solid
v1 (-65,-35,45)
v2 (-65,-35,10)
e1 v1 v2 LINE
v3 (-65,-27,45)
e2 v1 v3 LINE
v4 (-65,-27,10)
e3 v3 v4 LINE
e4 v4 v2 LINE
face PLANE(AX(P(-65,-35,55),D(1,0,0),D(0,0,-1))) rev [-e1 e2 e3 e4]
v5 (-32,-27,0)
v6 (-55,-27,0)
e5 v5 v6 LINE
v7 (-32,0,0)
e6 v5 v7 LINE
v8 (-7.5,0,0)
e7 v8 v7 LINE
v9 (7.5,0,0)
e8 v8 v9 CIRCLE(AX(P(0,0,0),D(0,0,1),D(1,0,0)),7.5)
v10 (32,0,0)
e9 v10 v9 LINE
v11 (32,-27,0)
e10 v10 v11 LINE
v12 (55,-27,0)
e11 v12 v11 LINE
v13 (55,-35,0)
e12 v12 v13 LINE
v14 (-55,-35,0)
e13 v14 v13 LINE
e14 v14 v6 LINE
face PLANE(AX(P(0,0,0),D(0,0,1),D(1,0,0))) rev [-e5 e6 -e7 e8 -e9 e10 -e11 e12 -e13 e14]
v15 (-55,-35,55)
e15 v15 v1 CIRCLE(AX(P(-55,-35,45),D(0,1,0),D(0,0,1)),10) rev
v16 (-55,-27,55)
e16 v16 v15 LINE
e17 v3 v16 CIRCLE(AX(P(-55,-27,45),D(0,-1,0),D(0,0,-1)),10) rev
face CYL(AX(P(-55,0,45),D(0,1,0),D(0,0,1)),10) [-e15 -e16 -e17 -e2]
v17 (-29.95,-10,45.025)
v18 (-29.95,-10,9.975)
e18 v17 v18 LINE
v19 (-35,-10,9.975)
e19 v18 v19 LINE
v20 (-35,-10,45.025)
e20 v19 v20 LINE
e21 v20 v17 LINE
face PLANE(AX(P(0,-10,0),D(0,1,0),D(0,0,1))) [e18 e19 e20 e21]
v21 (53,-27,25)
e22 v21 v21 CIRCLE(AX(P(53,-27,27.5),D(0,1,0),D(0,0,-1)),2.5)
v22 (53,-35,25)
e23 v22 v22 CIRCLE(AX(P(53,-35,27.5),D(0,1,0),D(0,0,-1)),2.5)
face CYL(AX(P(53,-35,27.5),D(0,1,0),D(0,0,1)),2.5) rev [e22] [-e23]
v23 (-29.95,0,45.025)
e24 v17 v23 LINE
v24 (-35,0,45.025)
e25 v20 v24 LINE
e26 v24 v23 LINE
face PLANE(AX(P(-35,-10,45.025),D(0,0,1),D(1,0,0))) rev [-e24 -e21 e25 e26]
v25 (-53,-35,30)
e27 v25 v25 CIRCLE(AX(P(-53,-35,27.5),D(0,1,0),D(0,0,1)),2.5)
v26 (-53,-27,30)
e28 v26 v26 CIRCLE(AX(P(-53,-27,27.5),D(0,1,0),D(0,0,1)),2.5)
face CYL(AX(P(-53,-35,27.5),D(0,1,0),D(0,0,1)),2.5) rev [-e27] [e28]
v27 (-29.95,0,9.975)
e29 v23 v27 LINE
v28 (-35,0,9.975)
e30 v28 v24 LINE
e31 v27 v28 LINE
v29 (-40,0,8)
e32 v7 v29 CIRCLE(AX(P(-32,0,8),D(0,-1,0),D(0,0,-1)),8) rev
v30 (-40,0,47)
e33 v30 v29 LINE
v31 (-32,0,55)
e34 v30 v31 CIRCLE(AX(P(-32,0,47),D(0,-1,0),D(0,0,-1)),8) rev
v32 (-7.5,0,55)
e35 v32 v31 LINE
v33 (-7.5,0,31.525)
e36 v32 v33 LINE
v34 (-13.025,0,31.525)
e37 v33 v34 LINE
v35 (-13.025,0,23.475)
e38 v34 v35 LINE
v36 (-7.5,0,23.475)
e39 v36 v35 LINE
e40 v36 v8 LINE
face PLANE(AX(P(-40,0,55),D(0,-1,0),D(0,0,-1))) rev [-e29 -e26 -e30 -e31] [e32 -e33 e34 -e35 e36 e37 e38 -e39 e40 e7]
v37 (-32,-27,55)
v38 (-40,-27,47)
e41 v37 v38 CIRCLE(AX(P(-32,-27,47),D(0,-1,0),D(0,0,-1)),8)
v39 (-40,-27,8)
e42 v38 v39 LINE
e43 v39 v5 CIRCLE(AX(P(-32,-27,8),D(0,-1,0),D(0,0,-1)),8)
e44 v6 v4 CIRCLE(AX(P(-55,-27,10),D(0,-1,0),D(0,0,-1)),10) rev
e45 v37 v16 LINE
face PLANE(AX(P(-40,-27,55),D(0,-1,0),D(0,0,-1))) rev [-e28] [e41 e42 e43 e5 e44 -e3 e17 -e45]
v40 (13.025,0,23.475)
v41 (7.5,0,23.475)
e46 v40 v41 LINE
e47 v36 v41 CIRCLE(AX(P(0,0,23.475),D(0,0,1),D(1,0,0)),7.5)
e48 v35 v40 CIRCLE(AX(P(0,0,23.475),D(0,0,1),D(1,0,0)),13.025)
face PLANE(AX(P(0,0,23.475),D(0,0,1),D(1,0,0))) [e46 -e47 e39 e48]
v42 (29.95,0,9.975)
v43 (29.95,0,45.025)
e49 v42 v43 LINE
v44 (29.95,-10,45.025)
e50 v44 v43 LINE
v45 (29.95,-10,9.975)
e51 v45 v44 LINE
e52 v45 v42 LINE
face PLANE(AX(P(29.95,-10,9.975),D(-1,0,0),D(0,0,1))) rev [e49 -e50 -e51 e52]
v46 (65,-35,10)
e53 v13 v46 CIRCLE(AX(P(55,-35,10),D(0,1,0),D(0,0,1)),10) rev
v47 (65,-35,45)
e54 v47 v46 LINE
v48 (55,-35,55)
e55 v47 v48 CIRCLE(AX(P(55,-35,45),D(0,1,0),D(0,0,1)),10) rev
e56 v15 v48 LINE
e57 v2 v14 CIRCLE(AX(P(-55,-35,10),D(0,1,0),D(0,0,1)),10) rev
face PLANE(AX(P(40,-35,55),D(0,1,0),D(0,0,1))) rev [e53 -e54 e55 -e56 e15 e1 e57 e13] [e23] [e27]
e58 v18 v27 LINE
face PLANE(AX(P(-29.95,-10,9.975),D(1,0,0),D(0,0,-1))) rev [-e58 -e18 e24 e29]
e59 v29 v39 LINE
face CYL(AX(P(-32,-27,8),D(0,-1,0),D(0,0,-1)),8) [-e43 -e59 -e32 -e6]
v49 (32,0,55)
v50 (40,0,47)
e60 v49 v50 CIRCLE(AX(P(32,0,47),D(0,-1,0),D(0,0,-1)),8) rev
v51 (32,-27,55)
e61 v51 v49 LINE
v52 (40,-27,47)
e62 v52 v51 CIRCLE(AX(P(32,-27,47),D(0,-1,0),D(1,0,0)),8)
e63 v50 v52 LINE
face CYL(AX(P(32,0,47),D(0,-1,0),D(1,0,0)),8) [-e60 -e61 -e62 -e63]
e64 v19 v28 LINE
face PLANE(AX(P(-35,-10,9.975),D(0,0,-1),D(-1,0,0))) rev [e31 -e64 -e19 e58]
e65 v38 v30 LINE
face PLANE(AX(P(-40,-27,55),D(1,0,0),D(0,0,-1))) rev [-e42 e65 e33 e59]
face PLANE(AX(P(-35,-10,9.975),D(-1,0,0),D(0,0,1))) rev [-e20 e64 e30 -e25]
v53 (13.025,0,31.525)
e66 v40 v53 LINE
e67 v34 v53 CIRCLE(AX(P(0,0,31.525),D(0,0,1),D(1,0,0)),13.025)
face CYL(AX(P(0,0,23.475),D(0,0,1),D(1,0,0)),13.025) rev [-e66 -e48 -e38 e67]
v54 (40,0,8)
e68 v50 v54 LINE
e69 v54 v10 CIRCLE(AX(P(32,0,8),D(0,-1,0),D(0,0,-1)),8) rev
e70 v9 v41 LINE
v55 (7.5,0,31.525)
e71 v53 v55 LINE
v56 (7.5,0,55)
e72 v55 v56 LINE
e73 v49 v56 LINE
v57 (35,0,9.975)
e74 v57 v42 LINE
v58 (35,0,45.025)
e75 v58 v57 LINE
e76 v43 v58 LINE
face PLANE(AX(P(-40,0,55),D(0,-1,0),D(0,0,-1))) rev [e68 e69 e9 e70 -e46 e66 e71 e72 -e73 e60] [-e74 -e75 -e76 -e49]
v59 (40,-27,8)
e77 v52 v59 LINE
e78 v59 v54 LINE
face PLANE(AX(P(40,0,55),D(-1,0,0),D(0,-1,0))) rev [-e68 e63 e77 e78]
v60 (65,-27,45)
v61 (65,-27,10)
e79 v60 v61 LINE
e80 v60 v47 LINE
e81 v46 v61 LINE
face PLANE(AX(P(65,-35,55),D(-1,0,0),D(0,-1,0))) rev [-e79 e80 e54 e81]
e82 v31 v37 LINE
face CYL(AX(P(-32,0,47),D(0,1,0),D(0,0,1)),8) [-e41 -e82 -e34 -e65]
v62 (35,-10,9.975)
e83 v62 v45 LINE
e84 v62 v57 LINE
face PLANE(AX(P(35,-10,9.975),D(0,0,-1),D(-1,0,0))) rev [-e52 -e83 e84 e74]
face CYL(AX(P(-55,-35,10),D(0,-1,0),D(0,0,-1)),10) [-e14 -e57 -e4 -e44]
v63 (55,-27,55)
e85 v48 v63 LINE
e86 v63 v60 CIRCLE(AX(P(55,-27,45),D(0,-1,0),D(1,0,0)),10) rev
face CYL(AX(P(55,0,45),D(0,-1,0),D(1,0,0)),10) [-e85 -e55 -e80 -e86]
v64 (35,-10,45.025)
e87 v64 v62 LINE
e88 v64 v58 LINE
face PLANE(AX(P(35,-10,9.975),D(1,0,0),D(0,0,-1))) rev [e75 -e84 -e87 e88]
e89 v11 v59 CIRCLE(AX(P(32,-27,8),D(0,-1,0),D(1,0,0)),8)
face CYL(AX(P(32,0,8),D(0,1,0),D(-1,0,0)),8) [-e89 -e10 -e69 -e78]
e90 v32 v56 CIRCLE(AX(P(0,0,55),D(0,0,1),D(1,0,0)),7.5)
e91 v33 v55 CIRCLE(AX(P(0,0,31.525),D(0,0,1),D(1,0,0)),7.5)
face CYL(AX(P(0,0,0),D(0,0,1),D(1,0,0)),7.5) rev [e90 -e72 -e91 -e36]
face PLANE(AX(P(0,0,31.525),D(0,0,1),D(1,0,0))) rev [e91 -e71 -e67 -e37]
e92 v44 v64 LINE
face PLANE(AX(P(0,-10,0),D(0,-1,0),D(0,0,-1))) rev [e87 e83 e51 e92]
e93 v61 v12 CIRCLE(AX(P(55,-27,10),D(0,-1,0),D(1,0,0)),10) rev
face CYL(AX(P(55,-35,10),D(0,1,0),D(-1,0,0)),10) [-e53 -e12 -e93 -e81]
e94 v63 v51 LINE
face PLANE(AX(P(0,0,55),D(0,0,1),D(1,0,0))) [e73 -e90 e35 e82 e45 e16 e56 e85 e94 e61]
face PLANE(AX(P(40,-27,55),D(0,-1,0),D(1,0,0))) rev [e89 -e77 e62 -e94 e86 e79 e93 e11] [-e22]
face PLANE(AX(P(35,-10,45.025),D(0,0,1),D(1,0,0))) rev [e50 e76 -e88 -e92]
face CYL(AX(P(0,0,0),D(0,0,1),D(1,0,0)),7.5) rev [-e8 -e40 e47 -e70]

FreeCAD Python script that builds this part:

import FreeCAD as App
import Part
import Sketcher

V = App.Vector


def edges_at(feature, points):
    """Names of the edges that pass closest to the given points."""
    edges = feature.Shape.Edges
    near = lambda p: min(range(len(edges)), key=lambda i: edges[i].distToShape(Part.Vertex(*p))[0])
    return sorted({f"Edge{near(p) + 1}" for p in points})

doc = App.newDocument("Part")
body = doc.addObject("PartDesign::Body", "Body")

# Sketch on XY plane
sketch1 = doc.addObject("Sketcher::SketchObject", "Sketch")
body.addObject(sketch1)
sketch1.AttachmentSupport = (doc.XY_Plane, [""])
sketch1.MapMode = "FlatFace"
sketch1.addGeometry(Part.LineSegment(V(40, 0, 0), V(-40, 0, 0)), False)
sketch1.addGeometry(Part.LineSegment(V(-40, 0, 0), V(-40, -27, 0)), False)
sketch1.addGeometry(Part.LineSegment(V(-40, -27, 0), V(-65, -27, 0)), False)
sketch1.addGeometry(Part.LineSegment(V(-65, -27, 0), V(-65, -35, 0)), False)
sketch1.addGeometry(Part.LineSegment(V(-65, -35, 0), V(65, -35, 0)), False)
sketch1.addGeometry(Part.LineSegment(V(65, -35, 0), V(65, -27, 0)), False)
sketch1.addGeometry(Part.LineSegment(V(65, -27, 0), V(40, -27, 0)), False)
sketch1.addGeometry(Part.LineSegment(V(40, -27, 0), V(40, 0, 0)), False)
sketch1.addConstraint(Sketcher.Constraint("Coincident", 0, 2, 1, 1))
sketch1.addConstraint(Sketcher.Constraint("Coincident", 1, 2, 2, 1))
sketch1.addConstraint(Sketcher.Constraint("Coincident", 2, 2, 3, 1))
sketch1.addConstraint(Sketcher.Constraint("Coincident", 3, 2, 4, 1))
sketch1.addConstraint(Sketcher.Constraint("Coincident", 4, 2, 5, 1))
sketch1.addConstraint(Sketcher.Constraint("Coincident", 5, 2, 6, 1))
sketch1.addConstraint(Sketcher.Constraint("Coincident", 6, 2, 7, 1))
sketch1.addConstraint(Sketcher.Constraint("Coincident", 7, 2, 0, 1))
sketch1.addConstraint(Sketcher.Constraint("Horizontal", 0))
sketch1.addConstraint(Sketcher.Constraint("Vertical", 1))
sketch1.addConstraint(Sketcher.Constraint("Horizontal", 2))
sketch1.addConstraint(Sketcher.Constraint("Vertical", 3))
sketch1.addConstraint(Sketcher.Constraint("Horizontal", 4))
sketch1.addConstraint(Sketcher.Constraint("Vertical", 5))
sketch1.addConstraint(Sketcher.Constraint("Horizontal", 6))
sketch1.addConstraint(Sketcher.Constraint("Vertical", 7))
sketch1.addConstraint(Sketcher.Constraint("Symmetric", 0, 2, 7, 2, -1, 1))
sketch1.addConstraint(Sketcher.Constraint("Symmetric", 2, 2, 5, 2, -2))
sketch1.addConstraint(Sketcher.Constraint("DistanceX", 0, 2, 0, 1, 80.0))
sketch1.addConstraint(Sketcher.Constraint("DistanceX", 2, 2, 2, 1, 25.0))
sketch1.addConstraint(Sketcher.Constraint("DistanceY", 1, 2, 1, 1, 27.0))
sketch1.addConstraint(Sketcher.Constraint("DistanceY", 3, 2, 3, 1, 8.0))
pad1 = doc.addObject("PartDesign::Pad", "Pad")
body.addObject(pad1)
pad1.Profile = sketch1
pad1.Length = 55

# Sketch on XY plane
sketch2 = doc.addObject("Sketcher::SketchObject", "Sketch001")
body.addObject(sketch2)
sketch2.AttachmentSupport = (doc.XY_Plane, [""])
sketch2.MapMode = "FlatFace"
sketch2.AttachmentOffset = App.Placement(V(0, 0, 27.5), App.Rotation())
sketch2.addGeometry(Part.Circle(V(0, 0, 0), V(0, 0, 1), 13), False)
sketch2.addConstraint(Sketcher.Constraint("Coincident", 0, 3, -1, 1))
sketch2.addConstraint(Sketcher.Constraint("Diameter", 0, 26.05))
pocket1 = doc.addObject("PartDesign::Pocket", "Pocket")
body.addObject(pocket1)
pocket1.Profile = sketch2
pocket1.Length = 8.05
pocket1.Midplane = True

# Sketch on XZ plane
sketch3 = doc.addObject("Sketcher::SketchObject", "Sketch002")
body.addObject(sketch3)
sketch3.AttachmentSupport = (doc.XZ_Plane, [""])
sketch3.MapMode = "FlatFace"
sketch3.addGeometry(Part.LineSegment(V(-35, 10, 0), V(-35, 45, 0)), False)
sketch3.addGeometry(Part.LineSegment(V(-35, 45, 0), V(-30, 45, 0)), False)
sketch3.addGeometry(Part.LineSegment(V(-30, 45, 0), V(-30, 10, 0)), False)
sketch3.addGeometry(Part.LineSegment(V(-30, 10, 0), V(-35, 10, 0)), False)
sketch3.addGeometry(Part.LineSegment(V(30, 10, 0), V(30, 45, 0)), False)
sketch3.addGeometry(Part.LineSegment(V(30, 45, 0), V(35, 45, 0)), False)
sketch3.addGeometry(Part.LineSegment(V(35, 45, 0), V(35, 10, 0)), False)
sketch3.addGeometry(Part.LineSegment(V(35, 10, 0), V(30, 10, 0)), False)
sketch3.addConstraint(Sketcher.Constraint("Coincident", 0, 2, 1, 1))
sketch3.addConstraint(Sketcher.Constraint("Coincident", 1, 2, 2, 1))
sketch3.addConstraint(Sketcher.Constraint("Coincident", 2, 2, 3, 1))
sketch3.addConstraint(Sketcher.Constraint("Coincident", 3, 2, 0, 1))
sketch3.addConstraint(Sketcher.Constraint("Coincident", 4, 2, 5, 1))
sketch3.addConstraint(Sketcher.Constraint("Coincident", 5, 2, 6, 1))
sketch3.addConstraint(Sketcher.Constraint("Coincident", 6, 2, 7, 1))
sketch3.addConstraint(Sketcher.Constraint("Coincident", 7, 2, 4, 1))
sketch3.addConstraint(Sketcher.Constraint("Vertical", 0))
sketch3.addConstraint(Sketcher.Constraint("Horizontal", 1))
sketch3.addConstraint(Sketcher.Constraint("Vertical", 2))
sketch3.addConstraint(Sketcher.Constraint("Horizontal", 3))
sketch3.addConstraint(Sketcher.Constraint("Vertical", 4))
sketch3.addConstraint(Sketcher.Constraint("Horizontal", 5))
sketch3.addConstraint(Sketcher.Constraint("Vertical", 6))
sketch3.addConstraint(Sketcher.Constraint("Horizontal", 7))
sketch3.addConstraint(Sketcher.Constraint("Symmetric", 1, 2, 4, 2, -2))
sketch3.addConstraint(Sketcher.Constraint("Symmetric", 3, 2, 6, 2, -2))
sketch3.addConstraint(Sketcher.Constraint("DistanceX", 0, 2, -1, 1, 35.0))
sketch3.addConstraint(Sketcher.Constraint("DistanceX", 1, 1, 1, 2, 5.05))
sketch3.addConstraint(Sketcher.Constraint("DistanceY", 0, 1, 0, 2, 35.05))
sketch3.addConstraint(Sketcher.Constraint("DistanceY", -1, 1, 0, 2, 45.025))
pocket2 = doc.addObject("PartDesign::Pocket", "Pocket001")
body.addObject(pocket2)
pocket2.Profile = sketch3
pocket2.Length = 10
pocket2.Reversed = True

# Sketch on XY plane
sketch4 = doc.addObject("Sketcher::SketchObject", "Sketch003")
body.addObject(sketch4)
sketch4.AttachmentSupport = (doc.XY_Plane, [""])
sketch4.MapMode = "FlatFace"
sketch4.AttachmentOffset = App.Placement(V(0, 0, 27.5), App.Rotation())
sketch4.addGeometry(Part.Circle(V(0, 0, 0), V(0, 0, 1), 8), False)
sketch4.addConstraint(Sketcher.Constraint("Coincident", 0, 3, -1, 1))
sketch4.addConstraint(Sketcher.Constraint("Diameter", 0, 15.0))
pocket3 = doc.addObject("PartDesign::Pocket", "Pocket002")
body.addObject(pocket3)
pocket3.Profile = sketch4
pocket3.Type = "ThroughAll"
pocket3.Midplane = True
doc.recompute()

fillet = doc.addObject("PartDesign::Fillet", "Fillet")
body.addObject(fillet)
fillet.Base = (pocket3, edges_at(pocket3, [
    (65, -31, 0),
    (-65, -31, 0),
    (65, -31, 55),
    (-65, -31, 55),
]))
fillet.Radius = 10

# Sketch on XZ plane
sketch5 = doc.addObject("Sketcher::SketchObject", "Sketch004")
body.addObject(sketch5)
sketch5.AttachmentSupport = (doc.XZ_Plane, [""])
sketch5.MapMode = "FlatFace"
sketch5.AttachmentOffset = App.Placement(V(0, 0, 27), App.Rotation())
sketch5.addGeometry(Part.Circle(V(-53, 27.5, 0), V(0, 0, 1), 2.5), False)
sketch5.addGeometry(Part.Circle(V(53, 27.5, 0), V(0, 0, 1), 2.5), False)
sketch5.addConstraint(Sketcher.Constraint("Equal", 0, 1))
sketch5.addConstraint(Sketcher.Constraint("Symmetric", 0, 3, 1, 3, -2))
sketch5.addConstraint(Sketcher.Constraint("Diameter", 0, 5.0))
sketch5.addConstraint(Sketcher.Constraint("DistanceX", 0, 3, -1, 1, 53.0))
sketch5.addConstraint(Sketcher.Constraint("DistanceY", -1, 1, 0, 3, 27.5))
pocket4 = doc.addObject("PartDesign::Pocket", "Pocket003")
body.addObject(pocket4)
pocket4.Profile = sketch5
pocket4.Type = "ThroughAll"
pocket4.Reversed = True
doc.recompute()

fillet2 = doc.addObject("PartDesign::Fillet", "Fillet001")
body.addObject(fillet2)
fillet2.Base = (pocket4, edges_at(pocket4, [
    (-40, -13.5, 0),
    (40, -13.5, 0),
    (40, -13.5, 55),
    (-40, -13.5, 55),
]))
fillet2.Radius = 8

doc.recompute()
